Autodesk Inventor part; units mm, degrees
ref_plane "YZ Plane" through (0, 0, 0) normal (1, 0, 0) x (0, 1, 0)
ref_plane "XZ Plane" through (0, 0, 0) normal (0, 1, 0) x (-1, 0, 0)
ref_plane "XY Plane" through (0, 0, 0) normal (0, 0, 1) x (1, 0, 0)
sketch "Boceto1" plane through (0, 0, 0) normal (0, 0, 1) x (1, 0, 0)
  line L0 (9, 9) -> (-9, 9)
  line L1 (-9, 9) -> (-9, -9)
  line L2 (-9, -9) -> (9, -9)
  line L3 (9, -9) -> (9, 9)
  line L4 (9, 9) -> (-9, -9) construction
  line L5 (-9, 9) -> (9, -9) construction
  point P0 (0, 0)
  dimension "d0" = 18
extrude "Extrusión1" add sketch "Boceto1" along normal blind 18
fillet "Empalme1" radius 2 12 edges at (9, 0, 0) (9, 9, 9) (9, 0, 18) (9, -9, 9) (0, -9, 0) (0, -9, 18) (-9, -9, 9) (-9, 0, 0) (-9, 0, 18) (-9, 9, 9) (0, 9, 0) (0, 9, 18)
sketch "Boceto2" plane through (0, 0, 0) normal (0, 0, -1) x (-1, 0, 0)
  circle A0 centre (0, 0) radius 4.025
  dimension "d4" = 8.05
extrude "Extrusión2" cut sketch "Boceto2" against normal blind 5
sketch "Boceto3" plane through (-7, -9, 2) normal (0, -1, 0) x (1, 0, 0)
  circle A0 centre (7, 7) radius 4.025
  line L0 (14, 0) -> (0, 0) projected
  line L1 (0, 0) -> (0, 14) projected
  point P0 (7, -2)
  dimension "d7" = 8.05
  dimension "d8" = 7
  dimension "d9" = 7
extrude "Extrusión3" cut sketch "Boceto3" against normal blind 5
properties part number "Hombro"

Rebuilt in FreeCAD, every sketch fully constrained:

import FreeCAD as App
import Part
import Sketcher

V = App.Vector

doc = App.newDocument("Part")
body = doc.addObject("PartDesign::Body", "Body")

sketch1 = doc.addObject("Sketcher::SketchObject", "Sketch")
body.addObject(sketch1)
sketch1.AttachmentSupport = (doc.XY_Plane, [""])
sketch1.MapMode = "FlatFace"
sketch1.addGeometry(Part.LineSegment(V(9, -9, 0), V(9, 9, 0)), False)
sketch1.addGeometry(Part.LineSegment(V(9, 9, 0), V(-9, 9, 0)), False)
sketch1.addGeometry(Part.LineSegment(V(-9, 9, 0), V(-9, -9, 0)), False)
sketch1.addGeometry(Part.LineSegment(V(-9, -9, 0), V(9, -9, 0)), False)
sketch1.addConstraint(Sketcher.Constraint("Coincident", 0, 2, 1, 1))
sketch1.addConstraint(Sketcher.Constraint("Coincident", 1, 2, 2, 1))
sketch1.addConstraint(Sketcher.Constraint("Coincident", 2, 2, 3, 1))
sketch1.addConstraint(Sketcher.Constraint("Coincident", 3, 2, 0, 1))
sketch1.addConstraint(Sketcher.Constraint("Vertical", 0))
sketch1.addConstraint(Sketcher.Constraint("Horizontal", 1))
sketch1.addConstraint(Sketcher.Constraint("Vertical", 2))
sketch1.addConstraint(Sketcher.Constraint("Horizontal", 3))
sketch1.addConstraint(Sketcher.Constraint("Symmetric", 0, 2, 2, 2, -1, 1))
sketch1.addConstraint(Sketcher.Constraint("Equal", 3, 0))
sketch1.addConstraint(Sketcher.Constraint("DistanceX", 1, 2, 1, 1, 18.0))
pad1 = doc.addObject("PartDesign::Pad", "Pad")
body.addObject(pad1)
pad1.Profile = sketch1
pad1.Length = 18
doc.recompute()

fillet = doc.addObject("PartDesign::Fillet", "Fillet")
body.addObject(fillet)
fillet.Base = (pad1, ["Edge1"])
fillet.UseAllEdges = True
fillet.Radius = 2

sketch2 = doc.addObject("Sketcher::SketchObject", "Sketch001")
body.addObject(sketch2)
sketch2.AttachmentSupport = (doc.XY_Plane, [""])
sketch2.MapMode = "FlatFace"
sketch2.addGeometry(Part.Circle(V(0, 0, 0), V(0, 0, 1), 4), False)
sketch2.addConstraint(Sketcher.Constraint("Coincident", 0, 3, -1, 1))
sketch2.addConstraint(Sketcher.Constraint("Diameter", 0, 8.05))
pocket1 = doc.addObject("PartDesign::Pocket", "Pocket")
body.addObject(pocket1)
pocket1.Profile = sketch2
pocket1.Length = 5
pocket1.Reversed = True

sketch3 = doc.addObject("Sketcher::SketchObject", "Sketch002")
body.addObject(sketch3)
sketch3.AttachmentSupport = (doc.XZ_Plane, [""])
sketch3.MapMode = "FlatFace"
sketch3.AttachmentOffset = App.Placement(V(0, 0, 9), App.Rotation())
sketch3.addGeometry(Part.Circle(V(0, 9, 0), V(0, 0, 1), 4), False)
sketch3.addConstraint(Sketcher.Constraint("PointOnObject", 0, 3, -2))
sketch3.addConstraint(Sketcher.Constraint("Diameter", 0, 8.05))
sketch3.addConstraint(Sketcher.Constraint("DistanceY", -1, 1, 0, 3, 9.0))
pocket2 = doc.addObject("PartDesign::Pocket", "Pocket001")
body.addObject(pocket2)
pocket2.Profile = sketch3
pocket2.Length = 5

doc.recompute()
